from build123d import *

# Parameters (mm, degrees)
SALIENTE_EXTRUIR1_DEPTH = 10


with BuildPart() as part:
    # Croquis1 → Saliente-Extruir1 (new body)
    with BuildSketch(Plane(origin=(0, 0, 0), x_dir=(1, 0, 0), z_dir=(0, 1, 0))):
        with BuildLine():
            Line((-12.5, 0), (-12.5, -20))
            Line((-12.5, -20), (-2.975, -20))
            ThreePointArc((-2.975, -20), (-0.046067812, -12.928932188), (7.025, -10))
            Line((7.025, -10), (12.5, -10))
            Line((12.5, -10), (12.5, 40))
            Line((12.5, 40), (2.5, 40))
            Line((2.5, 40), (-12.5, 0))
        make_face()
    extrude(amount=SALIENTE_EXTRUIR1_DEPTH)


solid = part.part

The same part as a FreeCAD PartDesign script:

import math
import FreeCAD as App
import Part
import Sketcher

doc = App.newDocument("Part")
params = doc.addObject("Spreadsheet::Sheet", "Params")
for row, (alias, value) in enumerate([
    ("sketch1_radius", "10 mm"),
    ("sketch1_width", "10 mm"),
    ("sketch1_height", "20 mm"),
    ("sketch1_height2", "50 mm"),
    ("pad1_length", "10 mm"),
], start=1):
    params.set(f"A{row}", alias)
    params.set(f"B{row}", "=" + value)
    params.setAlias(f"B{row}", alias)

body = doc.addObject("PartDesign::Body", "Body")

sketch1 = body.newObject("Sketcher::SketchObject", "Sketch")
sketch1.AttachmentSupport = (doc.getObject("XZ_Plane"), [""])
sketch1.MapMode = "FlatFace"
sketch1.addGeometry(Part.LineSegment(App.Vector(-12, 0, 0), App.Vector(-12, 20, 0)), False)
sketch1.addGeometry(Part.LineSegment(App.Vector(-12, 20, 0), App.Vector(-3, 20, 0)), False)
sketch1.addGeometry(Part.ArcOfCircle(Part.Circle(App.Vector(7, 20, 0), App.Vector(0, 0, 1), 10), math.radians(180), math.radians(270)), False)
sketch1.addGeometry(Part.LineSegment(App.Vector(7, 10, 0), App.Vector(12, 10, 0)), False)
sketch1.addGeometry(Part.LineSegment(App.Vector(12, 10, 0), App.Vector(12, -40, 0)), False)
sketch1.addGeometry(Part.LineSegment(App.Vector(12, -40, 0), App.Vector(2, -40, 0)), False)
sketch1.addGeometry(Part.LineSegment(App.Vector(2, -40, 0), App.Vector(-12, 0, 0)), False)
sketch1.addConstraint(Sketcher.Constraint("Coincident", 0, 2, 1, 1))
sketch1.addConstraint(Sketcher.Constraint("Coincident", 1, 2, 2, 1))
sketch1.addConstraint(Sketcher.Constraint("Tangent", 2, 2, 3, 1))
sketch1.addConstraint(Sketcher.Constraint("Coincident", 3, 2, 4, 1))
sketch1.addConstraint(Sketcher.Constraint("Coincident", 4, 2, 5, 1))
sketch1.addConstraint(Sketcher.Constraint("Coincident", 5, 2, 6, 1))
sketch1.addConstraint(Sketcher.Constraint("Coincident", 6, 2, 0, 1))
sketch1.addConstraint(Sketcher.Constraint("Vertical", 0))
sketch1.addConstraint(Sketcher.Constraint("Horizontal", 1))
sketch1.addConstraint(Sketcher.Constraint("Horizontal", 3))
sketch1.addConstraint(Sketcher.Constraint("Vertical", 4))
sketch1.addConstraint(Sketcher.Constraint("Horizontal", 5))
sketch1.addConstraint(Sketcher.Constraint("PointOnObject", 6, 2, -1))
sketch1.addConstraint(Sketcher.Constraint("Horizontal", 2, 3, 0, 2))
sketch1.addConstraint(Sketcher.Constraint("Radius", 2, 10.0))
sketch1.addConstraint(Sketcher.Constraint("DistanceX", 5, 2, 5, 1, 10.0))
sketch1.addConstraint(Sketcher.Constraint("DistanceY", 0, 1, 0, 2, 20.0))
sketch1.addConstraint(Sketcher.Constraint("DistanceY", 4, 2, 4, 1, 50.0))
sketch1.addConstraint(Sketcher.Constraint("DistanceX", 0, 2, 3, 2, 25.0))
sketch1.addConstraint(Sketcher.Constraint("DistanceX", 0, 2, -1, 1, 12.5))
sketch1.addConstraint(Sketcher.Constraint("DistanceX", 1, 1, 1, 2, 9.525))
sketch1.setExpression("Constraints[14]", "Params.sketch1_radius")
sketch1.setExpression("Constraints[15]", "Params.sketch1_width")
sketch1.setExpression("Constraints[16]", "Params.sketch1_height")
sketch1.setExpression("Constraints[17]", "Params.sketch1_height2")
pad1 = body.newObject("PartDesign::Pad", "Pad")
pad1.Profile = sketch1
pad1.setExpression("Length", "Params.pad1_length")
pad1.Reversed = True

doc.recompute()
